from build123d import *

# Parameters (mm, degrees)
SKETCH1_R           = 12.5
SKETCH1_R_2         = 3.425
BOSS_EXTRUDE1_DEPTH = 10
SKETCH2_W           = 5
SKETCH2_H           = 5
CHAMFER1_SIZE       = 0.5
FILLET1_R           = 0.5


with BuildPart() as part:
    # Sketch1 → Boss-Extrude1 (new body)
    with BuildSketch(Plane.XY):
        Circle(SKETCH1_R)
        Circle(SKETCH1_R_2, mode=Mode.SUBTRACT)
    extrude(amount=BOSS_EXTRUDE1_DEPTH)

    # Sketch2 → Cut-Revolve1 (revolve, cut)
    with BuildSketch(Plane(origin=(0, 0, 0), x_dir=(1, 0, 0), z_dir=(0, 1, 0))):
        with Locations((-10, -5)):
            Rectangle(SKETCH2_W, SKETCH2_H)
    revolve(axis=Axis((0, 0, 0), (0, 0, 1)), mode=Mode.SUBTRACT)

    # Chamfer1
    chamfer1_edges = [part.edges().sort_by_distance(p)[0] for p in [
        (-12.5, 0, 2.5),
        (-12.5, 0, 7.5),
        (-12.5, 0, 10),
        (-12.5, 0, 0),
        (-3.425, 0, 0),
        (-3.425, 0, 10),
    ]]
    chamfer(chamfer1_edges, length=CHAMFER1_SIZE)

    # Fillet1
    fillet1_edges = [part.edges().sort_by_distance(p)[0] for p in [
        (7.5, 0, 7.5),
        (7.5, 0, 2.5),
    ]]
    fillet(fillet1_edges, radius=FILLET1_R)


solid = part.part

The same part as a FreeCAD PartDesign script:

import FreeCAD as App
import Part
import Sketcher

V = App.Vector


def edges_at(feature, points):
    """Names of the edges that pass closest to the given points."""
    edges = feature.Shape.Edges
    near = lambda p: min(range(len(edges)), key=lambda i: edges[i].distToShape(Part.Vertex(*p))[0])
    return sorted({f"Edge{near(p) + 1}" for p in points})

doc = App.newDocument("Part")
body = doc.addObject("PartDesign::Body", "Body")

sketch1 = doc.addObject("Sketcher::SketchObject", "Sketch")
body.addObject(sketch1)
sketch1.AttachmentSupport = (doc.XY_Plane, [""])
sketch1.MapMode = "FlatFace"
sketch1.addGeometry(Part.Circle(V(0, 0, 0), V(0, 0, 1), 12.5), False)
sketch1.addGeometry(Part.Circle(V(0, 0, 0), V(0, 0, 1), 3.4), False)
sketch1.addConstraint(Sketcher.Constraint("Coincident", 0, 3, -1, 1))
sketch1.addConstraint(Sketcher.Constraint("Coincident", 1, 3, -1, 1))
sketch1.addConstraint(Sketcher.Constraint("Diameter", 0, 25.0))
sketch1.addConstraint(Sketcher.Constraint("Diameter", 1, 6.85))
pad1 = doc.addObject("PartDesign::Pad", "Pad")
body.addObject(pad1)
pad1.Profile = sketch1
pad1.Length = 10

sketch2 = doc.addObject("Sketcher::SketchObject", "Sketch001")
body.addObject(sketch2)
sketch2.AttachmentSupport = (doc.XZ_Plane, [""])
sketch2.MapMode = "FlatFace"
sketch2.addGeometry(Part.LineSegment(V(-12, 2, 0), V(-12, 8, 0)), False)
sketch2.addGeometry(Part.LineSegment(V(-12, 8, 0), V(-8, 8, 0)), False)
sketch2.addGeometry(Part.LineSegment(V(-8, 8, 0), V(-8, 2, 0)), False)
sketch2.addGeometry(Part.LineSegment(V(-8, 2, 0), V(-12, 2, 0)), False)
sketch2.addConstraint(Sketcher.Constraint("Coincident", 0, 2, 1, 1))
sketch2.addConstraint(Sketcher.Constraint("Coincident", 1, 2, 2, 1))
sketch2.addConstraint(Sketcher.Constraint("Coincident", 2, 2, 3, 1))
sketch2.addConstraint(Sketcher.Constraint("Coincident", 3, 2, 0, 1))
sketch2.addConstraint(Sketcher.Constraint("Vertical", 0))
sketch2.addConstraint(Sketcher.Constraint("Horizontal", 1))
sketch2.addConstraint(Sketcher.Constraint("Vertical", 2))
sketch2.addConstraint(Sketcher.Constraint("Horizontal", 3))
sketch2.addConstraint(Sketcher.Constraint("Equal", 3, 0))
sketch2.addConstraint(Sketcher.Constraint("DistanceX", 1, 1, 1, 2, 5.0))
sketch2.addConstraint(Sketcher.Constraint("DistanceX", 0, 2, -1, 1, 12.5))
sketch2.addConstraint(Sketcher.Constraint("DistanceY", -1, 1, 0, 2, 7.5))
groove = doc.addObject("PartDesign::Groove", "Groove")
body.addObject(groove)
groove.Profile = sketch2
groove.ReferenceAxis = (sketch2, ["V_Axis"])
groove.Angle = 360
doc.recompute()

chamfer = doc.addObject("PartDesign::Chamfer", "Chamfer")
body.addObject(chamfer)
chamfer.Base = (groove, edges_at(groove, [
    (-12.5, 0, 2.5),
    (-12.5, 0, 7.5),
    (-12.5, 0, 10),
    (-12.5, 0, 0),
    (-3.425, 0, 0),
    (-3.425, 0, 10),
]))
chamfer.Size = 0.5
doc.recompute()

fillet = doc.addObject("PartDesign::Fillet", "Fillet")
body.addObject(fillet)
fillet.Base = (chamfer, edges_at(chamfer, [(7.5, 0, 7.5), (7.5, 0, 2.5)]))
fillet.Radius = 0.5

doc.recompute()
